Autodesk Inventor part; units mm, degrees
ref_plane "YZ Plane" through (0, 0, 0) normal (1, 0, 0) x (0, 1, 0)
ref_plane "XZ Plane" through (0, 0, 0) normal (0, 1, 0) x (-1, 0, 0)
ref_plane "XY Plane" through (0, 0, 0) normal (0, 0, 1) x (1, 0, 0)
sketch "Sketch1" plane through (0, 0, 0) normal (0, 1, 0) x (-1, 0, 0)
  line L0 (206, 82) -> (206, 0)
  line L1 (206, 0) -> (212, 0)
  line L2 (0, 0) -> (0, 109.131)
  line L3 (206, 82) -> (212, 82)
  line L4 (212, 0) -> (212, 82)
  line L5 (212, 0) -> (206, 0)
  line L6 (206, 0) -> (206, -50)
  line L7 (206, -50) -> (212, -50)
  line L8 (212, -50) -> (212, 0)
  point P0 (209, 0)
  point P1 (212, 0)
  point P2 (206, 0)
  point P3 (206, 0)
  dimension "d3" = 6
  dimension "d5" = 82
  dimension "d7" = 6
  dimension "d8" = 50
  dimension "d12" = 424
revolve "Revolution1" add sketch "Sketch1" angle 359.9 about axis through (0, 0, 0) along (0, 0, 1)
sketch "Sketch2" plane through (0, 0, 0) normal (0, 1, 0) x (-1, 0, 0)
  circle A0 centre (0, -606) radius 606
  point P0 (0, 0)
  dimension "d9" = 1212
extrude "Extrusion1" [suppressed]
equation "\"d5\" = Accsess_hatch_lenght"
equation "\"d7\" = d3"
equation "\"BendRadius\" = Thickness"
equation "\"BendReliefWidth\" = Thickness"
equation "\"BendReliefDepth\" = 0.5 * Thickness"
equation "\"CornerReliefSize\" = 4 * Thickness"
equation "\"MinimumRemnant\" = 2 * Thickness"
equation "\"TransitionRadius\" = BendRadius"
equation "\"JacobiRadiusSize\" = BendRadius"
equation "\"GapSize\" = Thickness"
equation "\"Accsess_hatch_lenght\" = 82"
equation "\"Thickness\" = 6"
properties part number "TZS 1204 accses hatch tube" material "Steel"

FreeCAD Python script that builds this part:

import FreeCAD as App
import Part
import Sketcher
from FreeCAD import Vector

doc = App.newDocument("Part")
body = doc.addObject("PartDesign::Body", "Body")

sketch1 = body.newObject("Sketcher::SketchObject", "Sketch")
sketch1.AttachmentSupport = (doc.getObject("XZ_Plane"), [""])
sketch1.MapMode = "FlatFace"
sketch1.addGeometry([
    Part.LineSegment(Vector(-212, 82, 0), Vector(-206, 82, 0)),
    Part.LineSegment(Vector(-206, 82, 0), Vector(-206, -50, 0)),
    Part.LineSegment(Vector(-206, -50, 0), Vector(-212, -50, 0)),
    Part.LineSegment(Vector(-212, -50, 0), Vector(-212, 82, 0)),
], False)
sketch1.addConstraint([
    Sketcher.Constraint("Coincident", 0, 2, 1, 1),
    Sketcher.Constraint("Coincident", 1, 2, 2, 1),
    Sketcher.Constraint("Coincident", 2, 2, 3, 1),
    Sketcher.Constraint("Coincident", 3, 2, 0, 1),
    Sketcher.Constraint("Horizontal", 0),
    Sketcher.Constraint("Vertical", 1),
    Sketcher.Constraint("Horizontal", 2),
    Sketcher.Constraint("Vertical", 3),
    Sketcher.Constraint("DistanceX", 0, 1, 0, 2, 6.0),
    Sketcher.Constraint("DistanceY", -1, 1, 0, 2, 82.0),
    Sketcher.Constraint("DistanceY", 1, 2, -1, 1, 50.0),
    Sketcher.Constraint("DistanceX", 0, 2, -1, 1, 206.0),
])
revolution = body.newObject("PartDesign::Revolution", "Revolution")
revolution.Profile = sketch1
revolution.ReferenceAxis = (sketch1, ["V_Axis"])
revolution.Angle = 359.9

doc.recompute()
